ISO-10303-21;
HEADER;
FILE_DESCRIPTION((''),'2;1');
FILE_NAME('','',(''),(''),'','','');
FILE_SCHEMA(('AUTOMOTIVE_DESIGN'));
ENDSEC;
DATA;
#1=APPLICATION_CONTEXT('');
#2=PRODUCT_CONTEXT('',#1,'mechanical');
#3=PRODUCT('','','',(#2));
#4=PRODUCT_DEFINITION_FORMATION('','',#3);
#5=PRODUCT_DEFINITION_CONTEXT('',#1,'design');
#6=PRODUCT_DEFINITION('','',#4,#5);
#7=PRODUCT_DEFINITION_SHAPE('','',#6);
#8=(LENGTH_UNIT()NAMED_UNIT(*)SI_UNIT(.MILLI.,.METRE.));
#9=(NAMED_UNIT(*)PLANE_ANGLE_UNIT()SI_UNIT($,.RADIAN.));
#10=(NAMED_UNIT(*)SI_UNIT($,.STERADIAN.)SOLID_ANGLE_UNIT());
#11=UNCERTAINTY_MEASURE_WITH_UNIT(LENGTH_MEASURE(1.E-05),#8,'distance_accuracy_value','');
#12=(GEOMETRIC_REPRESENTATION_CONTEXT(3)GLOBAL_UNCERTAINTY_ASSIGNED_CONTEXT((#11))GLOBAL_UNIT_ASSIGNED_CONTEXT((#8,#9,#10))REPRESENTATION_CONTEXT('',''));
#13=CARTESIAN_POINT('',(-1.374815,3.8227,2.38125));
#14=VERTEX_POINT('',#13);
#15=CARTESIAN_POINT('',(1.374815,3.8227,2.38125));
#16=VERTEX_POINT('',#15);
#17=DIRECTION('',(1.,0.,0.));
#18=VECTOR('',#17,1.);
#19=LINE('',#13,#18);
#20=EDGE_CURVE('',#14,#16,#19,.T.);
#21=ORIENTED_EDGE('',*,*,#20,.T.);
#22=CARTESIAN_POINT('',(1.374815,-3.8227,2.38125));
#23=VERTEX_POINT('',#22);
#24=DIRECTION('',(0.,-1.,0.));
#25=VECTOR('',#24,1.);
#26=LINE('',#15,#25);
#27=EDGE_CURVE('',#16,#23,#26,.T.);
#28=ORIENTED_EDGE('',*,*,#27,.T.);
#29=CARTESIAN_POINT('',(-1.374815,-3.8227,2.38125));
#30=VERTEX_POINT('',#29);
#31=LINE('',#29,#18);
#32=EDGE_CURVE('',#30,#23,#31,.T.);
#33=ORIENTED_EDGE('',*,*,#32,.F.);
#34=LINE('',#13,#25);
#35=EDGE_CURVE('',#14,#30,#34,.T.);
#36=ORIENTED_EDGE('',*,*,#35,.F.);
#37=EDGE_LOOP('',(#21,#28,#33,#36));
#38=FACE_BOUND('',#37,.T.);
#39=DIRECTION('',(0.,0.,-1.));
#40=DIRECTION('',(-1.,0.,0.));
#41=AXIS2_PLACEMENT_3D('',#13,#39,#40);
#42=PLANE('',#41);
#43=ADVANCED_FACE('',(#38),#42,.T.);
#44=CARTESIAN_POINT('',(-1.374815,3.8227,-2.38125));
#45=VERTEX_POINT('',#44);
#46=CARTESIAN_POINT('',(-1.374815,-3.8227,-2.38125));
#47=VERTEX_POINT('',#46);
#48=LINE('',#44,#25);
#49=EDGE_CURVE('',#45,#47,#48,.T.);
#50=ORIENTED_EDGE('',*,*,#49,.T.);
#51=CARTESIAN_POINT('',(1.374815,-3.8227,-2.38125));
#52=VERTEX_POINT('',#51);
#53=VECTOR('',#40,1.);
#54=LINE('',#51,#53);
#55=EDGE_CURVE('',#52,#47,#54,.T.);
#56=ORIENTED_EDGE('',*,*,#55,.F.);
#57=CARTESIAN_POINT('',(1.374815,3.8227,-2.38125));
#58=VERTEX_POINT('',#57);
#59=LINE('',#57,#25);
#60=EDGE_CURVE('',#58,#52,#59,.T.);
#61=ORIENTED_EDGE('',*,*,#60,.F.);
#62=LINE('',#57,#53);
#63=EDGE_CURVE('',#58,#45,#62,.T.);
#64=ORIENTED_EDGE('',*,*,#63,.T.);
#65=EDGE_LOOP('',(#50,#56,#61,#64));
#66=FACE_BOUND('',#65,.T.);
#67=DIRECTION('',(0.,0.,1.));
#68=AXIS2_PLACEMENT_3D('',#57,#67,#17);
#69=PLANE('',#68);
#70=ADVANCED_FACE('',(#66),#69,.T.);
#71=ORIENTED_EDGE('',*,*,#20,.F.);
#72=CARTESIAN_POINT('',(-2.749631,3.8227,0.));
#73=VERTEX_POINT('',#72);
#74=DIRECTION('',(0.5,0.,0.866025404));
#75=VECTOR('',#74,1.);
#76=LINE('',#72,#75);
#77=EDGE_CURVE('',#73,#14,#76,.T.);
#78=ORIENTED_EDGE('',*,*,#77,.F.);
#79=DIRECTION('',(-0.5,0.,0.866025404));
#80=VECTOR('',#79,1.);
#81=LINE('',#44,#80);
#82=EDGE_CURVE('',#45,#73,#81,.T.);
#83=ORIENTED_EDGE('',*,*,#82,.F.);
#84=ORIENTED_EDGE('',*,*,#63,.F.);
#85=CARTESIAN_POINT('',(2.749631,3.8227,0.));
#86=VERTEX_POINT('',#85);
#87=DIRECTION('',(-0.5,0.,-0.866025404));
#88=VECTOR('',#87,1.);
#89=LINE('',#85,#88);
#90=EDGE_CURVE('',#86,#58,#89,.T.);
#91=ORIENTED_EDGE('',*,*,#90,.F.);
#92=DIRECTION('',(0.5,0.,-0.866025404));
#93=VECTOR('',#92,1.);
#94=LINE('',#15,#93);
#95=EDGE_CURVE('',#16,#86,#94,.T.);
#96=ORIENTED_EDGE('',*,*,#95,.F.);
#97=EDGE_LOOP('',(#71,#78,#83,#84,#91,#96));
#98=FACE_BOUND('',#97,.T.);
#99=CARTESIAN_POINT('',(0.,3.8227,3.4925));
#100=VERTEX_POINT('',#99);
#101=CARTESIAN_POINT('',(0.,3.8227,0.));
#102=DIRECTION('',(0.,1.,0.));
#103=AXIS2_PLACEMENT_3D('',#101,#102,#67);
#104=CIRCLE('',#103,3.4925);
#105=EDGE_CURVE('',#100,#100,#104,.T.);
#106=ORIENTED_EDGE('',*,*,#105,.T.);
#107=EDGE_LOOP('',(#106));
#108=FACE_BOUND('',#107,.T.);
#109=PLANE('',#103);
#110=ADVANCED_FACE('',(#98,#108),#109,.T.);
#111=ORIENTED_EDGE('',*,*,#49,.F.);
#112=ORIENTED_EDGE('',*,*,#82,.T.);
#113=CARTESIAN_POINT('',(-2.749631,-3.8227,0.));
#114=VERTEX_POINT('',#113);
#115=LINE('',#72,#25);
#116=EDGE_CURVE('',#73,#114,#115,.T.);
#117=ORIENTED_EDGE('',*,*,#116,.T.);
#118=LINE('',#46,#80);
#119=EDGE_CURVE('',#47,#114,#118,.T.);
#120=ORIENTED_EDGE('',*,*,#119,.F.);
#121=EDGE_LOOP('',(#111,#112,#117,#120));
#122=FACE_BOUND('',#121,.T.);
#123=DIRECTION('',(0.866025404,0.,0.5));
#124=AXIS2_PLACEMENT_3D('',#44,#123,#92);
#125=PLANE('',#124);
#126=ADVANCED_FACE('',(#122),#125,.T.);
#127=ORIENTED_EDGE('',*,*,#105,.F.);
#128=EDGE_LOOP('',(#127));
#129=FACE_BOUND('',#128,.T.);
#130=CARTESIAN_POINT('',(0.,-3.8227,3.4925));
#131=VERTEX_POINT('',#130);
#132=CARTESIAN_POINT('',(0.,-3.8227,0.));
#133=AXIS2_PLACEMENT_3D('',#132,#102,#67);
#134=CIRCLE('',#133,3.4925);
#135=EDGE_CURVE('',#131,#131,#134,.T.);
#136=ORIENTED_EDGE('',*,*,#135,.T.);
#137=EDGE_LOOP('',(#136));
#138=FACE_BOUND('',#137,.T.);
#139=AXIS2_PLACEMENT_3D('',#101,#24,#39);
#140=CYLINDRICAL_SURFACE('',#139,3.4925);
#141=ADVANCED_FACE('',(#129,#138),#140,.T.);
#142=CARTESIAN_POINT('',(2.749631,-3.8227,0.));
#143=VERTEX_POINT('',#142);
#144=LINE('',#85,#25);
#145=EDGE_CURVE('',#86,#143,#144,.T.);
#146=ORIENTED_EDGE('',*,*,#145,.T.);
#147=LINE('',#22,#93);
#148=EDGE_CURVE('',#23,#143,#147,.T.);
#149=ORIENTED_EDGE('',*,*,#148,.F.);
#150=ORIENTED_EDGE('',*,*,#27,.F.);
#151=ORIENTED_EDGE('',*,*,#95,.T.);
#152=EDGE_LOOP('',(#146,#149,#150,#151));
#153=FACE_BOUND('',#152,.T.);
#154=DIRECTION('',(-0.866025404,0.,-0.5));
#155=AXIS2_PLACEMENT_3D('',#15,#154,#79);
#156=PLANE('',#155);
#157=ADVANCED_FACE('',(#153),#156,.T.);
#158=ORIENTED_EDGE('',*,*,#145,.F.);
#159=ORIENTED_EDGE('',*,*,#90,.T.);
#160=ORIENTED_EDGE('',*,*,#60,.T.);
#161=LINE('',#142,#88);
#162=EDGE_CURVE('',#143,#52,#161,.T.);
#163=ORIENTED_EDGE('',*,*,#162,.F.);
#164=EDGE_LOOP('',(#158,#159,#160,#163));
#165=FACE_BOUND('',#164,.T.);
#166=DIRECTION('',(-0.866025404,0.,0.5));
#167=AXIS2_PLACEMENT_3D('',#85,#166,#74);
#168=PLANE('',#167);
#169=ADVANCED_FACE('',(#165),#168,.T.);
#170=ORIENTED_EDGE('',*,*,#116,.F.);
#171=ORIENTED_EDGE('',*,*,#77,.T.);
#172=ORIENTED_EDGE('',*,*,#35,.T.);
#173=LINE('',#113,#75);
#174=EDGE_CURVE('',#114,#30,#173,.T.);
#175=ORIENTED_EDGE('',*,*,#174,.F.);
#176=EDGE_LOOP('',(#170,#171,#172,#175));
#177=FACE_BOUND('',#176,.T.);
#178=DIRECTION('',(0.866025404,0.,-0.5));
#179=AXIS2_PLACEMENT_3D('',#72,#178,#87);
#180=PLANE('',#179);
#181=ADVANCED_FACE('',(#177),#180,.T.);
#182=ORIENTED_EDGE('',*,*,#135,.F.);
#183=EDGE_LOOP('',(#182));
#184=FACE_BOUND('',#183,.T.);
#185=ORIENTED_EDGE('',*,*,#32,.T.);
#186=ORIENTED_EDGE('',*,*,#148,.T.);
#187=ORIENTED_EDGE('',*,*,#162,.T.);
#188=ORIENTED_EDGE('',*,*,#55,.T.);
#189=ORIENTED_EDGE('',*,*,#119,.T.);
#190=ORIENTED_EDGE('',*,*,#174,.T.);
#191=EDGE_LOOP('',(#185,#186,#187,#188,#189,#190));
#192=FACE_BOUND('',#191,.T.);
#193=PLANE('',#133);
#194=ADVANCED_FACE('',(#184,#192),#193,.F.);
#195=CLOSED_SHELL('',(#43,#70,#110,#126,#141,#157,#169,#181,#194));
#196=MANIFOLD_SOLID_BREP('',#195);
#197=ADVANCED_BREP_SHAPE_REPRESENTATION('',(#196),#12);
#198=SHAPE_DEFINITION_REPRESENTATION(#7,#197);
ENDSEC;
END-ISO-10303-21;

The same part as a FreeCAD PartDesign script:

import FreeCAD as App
import Part
import Sketcher

V = App.Vector
Q = App.Units.Quantity

doc = App.newDocument("Part")
params = doc.addObject("Spreadsheet::Sheet", "Params")
for row, (alias, value) in enumerate([
    ("sketch1_diameter", "0.275 in"),
    ("pad1_length", "0.301 in"),
], start=1):
    params.set(f"A{row}", alias)
    params.set(f"B{row}", "=" + value)
    params.setAlias(f"B{row}", alias)

body = doc.addObject("PartDesign::Body", "Body")

sketch1 = doc.addObject("Sketcher::SketchObject", "Sketch")
body.addObject(sketch1)
sketch1.AttachmentSupport = (doc.XZ_Plane, [""])
sketch1.MapMode = "FlatFace"
sketch1.addGeometry([
    Part.Circle(V(0, 0, 0), V(0, 0, 1), 3.4925),
    Part.LineSegment(V(2.749631, 0, 0), V(1.374815, 2.38125, 0)),
    Part.LineSegment(V(1.374815, 2.38125, 0), V(-1.374815, 2.38125, 0)),
    Part.LineSegment(V(-1.374815, 2.38125, 0), V(-2.749631, 0, 0)),
    Part.LineSegment(V(-2.749631, 0, 0), V(-1.374815, -2.38125, 0)),
    Part.LineSegment(V(-1.374815, -2.38125, 0), V(1.374815, -2.38125, 0)),
    Part.LineSegment(V(1.374815, -2.38125, 0), V(2.749631, 0, 0)),
], False)
sketch1.addConstraint([
    Sketcher.Constraint("Coincident", 1, 2, 2, 1),
    Sketcher.Constraint("Coincident", 2, 2, 3, 1),
    Sketcher.Constraint("Coincident", 3, 2, 4, 1),
    Sketcher.Constraint("Coincident", 4, 2, 5, 1),
    Sketcher.Constraint("Coincident", 5, 2, 6, 1),
    Sketcher.Constraint("Coincident", 6, 2, 1, 1),
    Sketcher.Constraint("Horizontal", 2),
    Sketcher.Constraint("Horizontal", 5),
    Sketcher.Constraint("Coincident", 0, 3, -1, 1),
    Sketcher.Constraint("Symmetric", 1, 2, 4, 2, -1, 1),
    Sketcher.Constraint("Symmetric", 3, 2, 6, 2, -1, 1),
    Sketcher.Constraint("PointOnObject", 3, 2, -1),
    Sketcher.Constraint("Parallel", 3, 6),
    Sketcher.Constraint("Vertical", 2, 2, 4, 2),
    Sketcher.Constraint("Diameter", 0, Q("0.275 in")),
    Sketcher.Constraint("Angle", 1, Q("120 deg")),
    Sketcher.Constraint("DistanceY", -1, 1, 1, 2, Q("0.09375 in")),
    Sketcher.Constraint("DistanceX", 2, 2, 2, 1, Q("2.749631 mm")),
])
sketch1.setExpression("Constraints[14]", "Params.sketch1_diameter")
pad1 = doc.addObject("PartDesign::Pad", "Pad")
body.addObject(pad1)
pad1.Profile = sketch1
pad1.setExpression("Length", "Params.pad1_length")
pad1.Midplane = True

doc.recompute()
